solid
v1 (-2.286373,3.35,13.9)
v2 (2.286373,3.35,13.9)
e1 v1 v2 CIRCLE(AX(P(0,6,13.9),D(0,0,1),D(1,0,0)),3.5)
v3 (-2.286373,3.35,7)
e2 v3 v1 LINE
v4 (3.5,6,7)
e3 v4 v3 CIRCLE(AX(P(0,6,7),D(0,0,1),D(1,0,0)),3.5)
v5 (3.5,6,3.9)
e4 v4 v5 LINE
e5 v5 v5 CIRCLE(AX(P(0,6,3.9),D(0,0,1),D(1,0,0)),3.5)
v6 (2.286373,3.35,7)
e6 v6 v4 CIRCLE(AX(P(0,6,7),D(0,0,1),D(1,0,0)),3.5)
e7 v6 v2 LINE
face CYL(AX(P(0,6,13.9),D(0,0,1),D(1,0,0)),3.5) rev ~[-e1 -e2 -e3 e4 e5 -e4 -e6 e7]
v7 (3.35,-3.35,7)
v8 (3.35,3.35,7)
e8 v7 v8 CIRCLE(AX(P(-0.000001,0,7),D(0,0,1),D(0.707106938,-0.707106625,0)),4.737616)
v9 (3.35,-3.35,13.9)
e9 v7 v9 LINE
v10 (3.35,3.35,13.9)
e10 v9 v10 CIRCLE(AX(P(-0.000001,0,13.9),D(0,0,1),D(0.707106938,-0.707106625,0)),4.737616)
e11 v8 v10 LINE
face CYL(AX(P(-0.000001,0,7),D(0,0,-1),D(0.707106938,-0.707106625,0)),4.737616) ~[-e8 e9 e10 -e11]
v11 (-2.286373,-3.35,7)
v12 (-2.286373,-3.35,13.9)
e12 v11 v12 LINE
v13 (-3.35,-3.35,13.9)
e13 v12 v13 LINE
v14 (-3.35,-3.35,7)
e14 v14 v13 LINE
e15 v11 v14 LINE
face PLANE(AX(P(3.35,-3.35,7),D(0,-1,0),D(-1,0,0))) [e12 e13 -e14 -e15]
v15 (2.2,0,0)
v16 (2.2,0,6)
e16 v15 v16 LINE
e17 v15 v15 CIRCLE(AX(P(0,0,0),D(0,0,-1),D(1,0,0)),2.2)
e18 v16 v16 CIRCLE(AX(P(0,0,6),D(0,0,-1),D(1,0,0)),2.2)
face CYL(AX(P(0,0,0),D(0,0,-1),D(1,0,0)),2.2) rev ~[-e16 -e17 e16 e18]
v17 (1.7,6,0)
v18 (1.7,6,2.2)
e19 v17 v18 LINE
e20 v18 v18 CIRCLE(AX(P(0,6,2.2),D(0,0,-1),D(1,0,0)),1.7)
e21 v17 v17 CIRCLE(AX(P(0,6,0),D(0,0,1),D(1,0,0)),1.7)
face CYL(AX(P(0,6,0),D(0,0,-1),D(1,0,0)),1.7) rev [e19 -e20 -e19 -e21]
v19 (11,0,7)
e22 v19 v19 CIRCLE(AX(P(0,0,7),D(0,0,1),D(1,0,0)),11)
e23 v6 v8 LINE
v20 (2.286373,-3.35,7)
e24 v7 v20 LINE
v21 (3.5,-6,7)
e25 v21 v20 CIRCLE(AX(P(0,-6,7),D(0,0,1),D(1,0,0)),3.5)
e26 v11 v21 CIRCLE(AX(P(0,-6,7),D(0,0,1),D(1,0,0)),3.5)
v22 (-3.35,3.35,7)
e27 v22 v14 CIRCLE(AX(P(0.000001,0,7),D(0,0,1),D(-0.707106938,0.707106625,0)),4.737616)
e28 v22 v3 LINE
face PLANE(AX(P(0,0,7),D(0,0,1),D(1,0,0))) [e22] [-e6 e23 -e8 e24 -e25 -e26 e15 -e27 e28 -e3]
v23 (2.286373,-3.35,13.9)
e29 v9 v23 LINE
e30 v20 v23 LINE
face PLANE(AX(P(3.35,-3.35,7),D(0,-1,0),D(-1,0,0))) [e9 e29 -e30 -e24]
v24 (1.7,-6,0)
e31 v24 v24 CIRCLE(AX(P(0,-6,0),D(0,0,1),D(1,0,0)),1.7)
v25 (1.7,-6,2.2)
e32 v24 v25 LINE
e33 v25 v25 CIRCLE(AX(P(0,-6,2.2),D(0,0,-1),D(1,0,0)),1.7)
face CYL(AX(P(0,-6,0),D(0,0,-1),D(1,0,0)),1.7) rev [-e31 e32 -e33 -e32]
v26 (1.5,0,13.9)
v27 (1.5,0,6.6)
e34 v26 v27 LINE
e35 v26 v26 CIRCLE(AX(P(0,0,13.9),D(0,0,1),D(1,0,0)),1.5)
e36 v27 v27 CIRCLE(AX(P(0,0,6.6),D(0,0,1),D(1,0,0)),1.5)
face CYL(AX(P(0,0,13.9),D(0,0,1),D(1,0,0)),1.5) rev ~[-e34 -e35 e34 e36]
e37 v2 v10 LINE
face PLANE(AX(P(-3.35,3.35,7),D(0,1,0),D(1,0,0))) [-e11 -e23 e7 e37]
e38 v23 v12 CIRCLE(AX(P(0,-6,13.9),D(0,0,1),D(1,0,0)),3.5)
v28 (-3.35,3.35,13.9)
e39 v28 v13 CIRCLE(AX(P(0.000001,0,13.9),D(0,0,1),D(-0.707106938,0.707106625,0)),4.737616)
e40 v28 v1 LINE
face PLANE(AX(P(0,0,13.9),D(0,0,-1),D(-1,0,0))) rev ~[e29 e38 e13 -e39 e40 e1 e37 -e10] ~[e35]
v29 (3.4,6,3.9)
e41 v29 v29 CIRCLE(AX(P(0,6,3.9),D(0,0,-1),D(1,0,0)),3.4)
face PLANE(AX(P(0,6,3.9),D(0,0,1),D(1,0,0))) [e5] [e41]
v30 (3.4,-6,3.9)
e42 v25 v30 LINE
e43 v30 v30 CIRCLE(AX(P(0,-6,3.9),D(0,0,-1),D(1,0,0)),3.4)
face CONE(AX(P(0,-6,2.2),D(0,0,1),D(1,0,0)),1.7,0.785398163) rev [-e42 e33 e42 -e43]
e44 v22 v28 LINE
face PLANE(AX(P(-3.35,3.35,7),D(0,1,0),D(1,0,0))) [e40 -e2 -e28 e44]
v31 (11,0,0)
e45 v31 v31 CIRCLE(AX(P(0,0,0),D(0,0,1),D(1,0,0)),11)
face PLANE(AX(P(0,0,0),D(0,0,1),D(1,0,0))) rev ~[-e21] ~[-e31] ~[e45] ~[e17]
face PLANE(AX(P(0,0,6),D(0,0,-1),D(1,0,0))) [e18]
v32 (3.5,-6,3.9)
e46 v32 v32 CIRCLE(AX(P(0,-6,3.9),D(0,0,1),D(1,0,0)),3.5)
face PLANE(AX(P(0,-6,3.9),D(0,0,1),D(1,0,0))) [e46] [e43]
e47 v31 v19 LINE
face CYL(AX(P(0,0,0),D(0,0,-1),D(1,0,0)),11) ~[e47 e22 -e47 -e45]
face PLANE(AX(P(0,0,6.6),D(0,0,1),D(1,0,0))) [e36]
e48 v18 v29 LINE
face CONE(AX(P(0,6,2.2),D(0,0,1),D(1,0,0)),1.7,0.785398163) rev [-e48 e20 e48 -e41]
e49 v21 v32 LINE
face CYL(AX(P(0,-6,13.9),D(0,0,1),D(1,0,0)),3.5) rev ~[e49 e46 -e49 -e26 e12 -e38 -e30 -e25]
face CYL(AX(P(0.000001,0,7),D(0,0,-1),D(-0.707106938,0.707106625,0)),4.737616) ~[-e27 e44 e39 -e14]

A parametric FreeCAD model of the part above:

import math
import FreeCAD as App
import Part
import Sketcher
from FreeCAD import Vector


def edges_at(feature, points):
    """Names of the edges that pass closest to the given points."""
    edges = feature.Shape.Edges
    near = lambda p: min(range(len(edges)), key=lambda i: edges[i].distToShape(Part.Vertex(*p))[0])
    return sorted({f"Edge{near(p) + 1}" for p in points})

doc = App.newDocument("Part")
body = doc.addObject("PartDesign::Body", "Body")

sketch1 = body.newObject("Sketcher::SketchObject", "Sketch")
sketch1.AttachmentSupport = (doc.getObject("XY_Plane"), [""])
sketch1.MapMode = "FlatFace"
sketch1.addGeometry(Part.Circle(Vector(0, 0, 0), Vector(0, 0, 1), 11), False)
sketch1.addGeometry(Part.Circle(Vector(0, -6, 0), Vector(0, 0, 1), 1.7), False)
sketch1.addGeometry(Part.Circle(Vector(0, 6, 0), Vector(0, 0, 1), 1.7), False)
sketch1.addConstraint(Sketcher.Constraint("Coincident", 0, 3, -1, 1))
sketch1.addConstraint(Sketcher.Constraint("Equal", 1, 2))
sketch1.addConstraint(Sketcher.Constraint("Symmetric", 1, 3, 2, 3, -1, 1))
sketch1.addConstraint(Sketcher.Constraint("PointOnObject", 1, 3, -2))
sketch1.addConstraint(Sketcher.Constraint("Diameter", 0, 22.0))
sketch1.addConstraint(Sketcher.Constraint("Diameter", 1, 3.4))
sketch1.addConstraint(Sketcher.Constraint("DistanceY", 1, 3, -1, 1, 6.0))
pad1 = body.newObject("PartDesign::Pad", "Pad")
pad1.Profile = sketch1
pad1.Length = 7

sketch2 = body.newObject("Sketcher::SketchObject", "Sketch001")
sketch2.AttachmentSupport = (doc.getObject("XY_Plane"), [""])
sketch2.MapMode = "FlatFace"
sketch2.AttachmentOffset = App.Placement(Vector(0, 0, 7), App.Rotation())
sketch2.addGeometry(Part.LineSegment(Vector(3.4, 3.4, 0), Vector(-3.4, 3.4, 0)), False)
sketch2.addGeometry(Part.ArcOfCircle(Part.Circle(Vector(0, 0, 0), Vector(0, 0, 1), 4.7), math.radians(135), math.radians(225)), False)
sketch2.addGeometry(Part.LineSegment(Vector(-3.4, -3.4, 0), Vector(3.4, -3.4, 0)), False)
sketch2.addGeometry(Part.ArcOfCircle(Part.Circle(Vector(0, 0, 0), Vector(0, 0, 1), 4.7), math.radians(-45), math.radians(45)), False)
sketch2.addConstraint(Sketcher.Constraint("Coincident", 0, 2, 1, 1))
sketch2.addConstraint(Sketcher.Constraint("Coincident", 1, 2, 2, 1))
sketch2.addConstraint(Sketcher.Constraint("Coincident", 2, 2, 3, 1))
sketch2.addConstraint(Sketcher.Constraint("Coincident", 3, 2, 0, 1))
sketch2.addConstraint(Sketcher.Constraint("Horizontal", 0))
sketch2.addConstraint(Sketcher.Constraint("Horizontal", 2))
sketch2.addConstraint(Sketcher.Constraint("Coincident", 1, 3, -1, 1))
sketch2.addConstraint(Sketcher.Constraint("Coincident", 3, 3, -1, 1))
sketch2.addConstraint(Sketcher.Constraint("Equal", 1, 3))
sketch2.addConstraint(Sketcher.Constraint("Vertical", 0, 2, 1, 2))
sketch2.addConstraint(Sketcher.Constraint("DistanceX", 0, 2, 0, 1, 6.7))
sketch2.addConstraint(Sketcher.Constraint("DistanceY", 1, 2, 0, 2, 6.7))
pad2 = body.newObject("PartDesign::Pad", "Pad001")
pad2.Profile = sketch2
pad2.Length = 6.9

sketch3 = body.newObject("Sketcher::SketchObject", "Sketch002")
sketch3.AttachmentSupport = (doc.getObject("XY_Plane"), [""])
sketch3.MapMode = "FlatFace"
sketch3.AttachmentOffset = App.Placement(Vector(0, 0, 13.9), App.Rotation())
sketch3.addGeometry(Part.Circle(Vector(0, 6, 0), Vector(0, 0, 1), 3.5), False)
sketch3.addGeometry(Part.Circle(Vector(0, -6, 0), Vector(0, 0, 1), 3.5), False)
sketch3.addConstraint(Sketcher.Constraint("Equal", 0, 1))
sketch3.addConstraint(Sketcher.Constraint("Symmetric", 0, 3, 1, 3, -1, 1))
sketch3.addConstraint(Sketcher.Constraint("PointOnObject", 0, 3, -2))
sketch3.addConstraint(Sketcher.Constraint("Diameter", 0, 7.0))
sketch3.addConstraint(Sketcher.Constraint("DistanceY", -1, 1, 0, 3, 6.0))
pocket1 = body.newObject("PartDesign::Pocket", "Pocket")
pocket1.Profile = sketch3
pocket1.Length = 10

sketch4 = body.newObject("Sketcher::SketchObject", "Sketch003")
sketch4.AttachmentSupport = (doc.getObject("XY_Plane"), [""])
sketch4.MapMode = "FlatFace"
sketch4.addGeometry(Part.Circle(Vector(0, 0, 0), Vector(0, 0, 1), 2.2), False)
sketch4.addConstraint(Sketcher.Constraint("Coincident", 0, 3, -1, 1))
sketch4.addConstraint(Sketcher.Constraint("Diameter", 0, 4.4))
pocket2 = body.newObject("PartDesign::Pocket", "Pocket001")
pocket2.Profile = sketch4
pocket2.Length = 6
pocket2.Reversed = True

sketch5 = body.newObject("Sketcher::SketchObject", "Sketch004")
sketch5.AttachmentSupport = (doc.getObject("XY_Plane"), [""])
sketch5.MapMode = "FlatFace"
sketch5.AttachmentOffset = App.Placement(Vector(0, 0, 13.9), App.Rotation())
sketch5.addGeometry(Part.Circle(Vector(0, 0, 0), Vector(0, 0, 1), 1.5), False)
sketch5.addConstraint(Sketcher.Constraint("Coincident", 0, 3, -1, 1))
sketch5.addConstraint(Sketcher.Constraint("Diameter", 0, 3.0))
pocket3 = body.newObject("PartDesign::Pocket", "Pocket002")
pocket3.Profile = sketch5
pocket3.Length = 7.3
doc.recompute()

chamfer = body.newObject("PartDesign::Chamfer", "Chamfer")
chamfer.Base = (pocket3, edges_at(pocket3, [(-1.7, 6, 3.9)]))
chamfer.Size = 1.7
doc.recompute()

chamfer2 = body.newObject("PartDesign::Chamfer", "Chamfer001")
chamfer2.Base = (chamfer, edges_at(chamfer, [(-1.7, -6, 3.9)]))
chamfer2.Size = 1.7

doc.recompute()
